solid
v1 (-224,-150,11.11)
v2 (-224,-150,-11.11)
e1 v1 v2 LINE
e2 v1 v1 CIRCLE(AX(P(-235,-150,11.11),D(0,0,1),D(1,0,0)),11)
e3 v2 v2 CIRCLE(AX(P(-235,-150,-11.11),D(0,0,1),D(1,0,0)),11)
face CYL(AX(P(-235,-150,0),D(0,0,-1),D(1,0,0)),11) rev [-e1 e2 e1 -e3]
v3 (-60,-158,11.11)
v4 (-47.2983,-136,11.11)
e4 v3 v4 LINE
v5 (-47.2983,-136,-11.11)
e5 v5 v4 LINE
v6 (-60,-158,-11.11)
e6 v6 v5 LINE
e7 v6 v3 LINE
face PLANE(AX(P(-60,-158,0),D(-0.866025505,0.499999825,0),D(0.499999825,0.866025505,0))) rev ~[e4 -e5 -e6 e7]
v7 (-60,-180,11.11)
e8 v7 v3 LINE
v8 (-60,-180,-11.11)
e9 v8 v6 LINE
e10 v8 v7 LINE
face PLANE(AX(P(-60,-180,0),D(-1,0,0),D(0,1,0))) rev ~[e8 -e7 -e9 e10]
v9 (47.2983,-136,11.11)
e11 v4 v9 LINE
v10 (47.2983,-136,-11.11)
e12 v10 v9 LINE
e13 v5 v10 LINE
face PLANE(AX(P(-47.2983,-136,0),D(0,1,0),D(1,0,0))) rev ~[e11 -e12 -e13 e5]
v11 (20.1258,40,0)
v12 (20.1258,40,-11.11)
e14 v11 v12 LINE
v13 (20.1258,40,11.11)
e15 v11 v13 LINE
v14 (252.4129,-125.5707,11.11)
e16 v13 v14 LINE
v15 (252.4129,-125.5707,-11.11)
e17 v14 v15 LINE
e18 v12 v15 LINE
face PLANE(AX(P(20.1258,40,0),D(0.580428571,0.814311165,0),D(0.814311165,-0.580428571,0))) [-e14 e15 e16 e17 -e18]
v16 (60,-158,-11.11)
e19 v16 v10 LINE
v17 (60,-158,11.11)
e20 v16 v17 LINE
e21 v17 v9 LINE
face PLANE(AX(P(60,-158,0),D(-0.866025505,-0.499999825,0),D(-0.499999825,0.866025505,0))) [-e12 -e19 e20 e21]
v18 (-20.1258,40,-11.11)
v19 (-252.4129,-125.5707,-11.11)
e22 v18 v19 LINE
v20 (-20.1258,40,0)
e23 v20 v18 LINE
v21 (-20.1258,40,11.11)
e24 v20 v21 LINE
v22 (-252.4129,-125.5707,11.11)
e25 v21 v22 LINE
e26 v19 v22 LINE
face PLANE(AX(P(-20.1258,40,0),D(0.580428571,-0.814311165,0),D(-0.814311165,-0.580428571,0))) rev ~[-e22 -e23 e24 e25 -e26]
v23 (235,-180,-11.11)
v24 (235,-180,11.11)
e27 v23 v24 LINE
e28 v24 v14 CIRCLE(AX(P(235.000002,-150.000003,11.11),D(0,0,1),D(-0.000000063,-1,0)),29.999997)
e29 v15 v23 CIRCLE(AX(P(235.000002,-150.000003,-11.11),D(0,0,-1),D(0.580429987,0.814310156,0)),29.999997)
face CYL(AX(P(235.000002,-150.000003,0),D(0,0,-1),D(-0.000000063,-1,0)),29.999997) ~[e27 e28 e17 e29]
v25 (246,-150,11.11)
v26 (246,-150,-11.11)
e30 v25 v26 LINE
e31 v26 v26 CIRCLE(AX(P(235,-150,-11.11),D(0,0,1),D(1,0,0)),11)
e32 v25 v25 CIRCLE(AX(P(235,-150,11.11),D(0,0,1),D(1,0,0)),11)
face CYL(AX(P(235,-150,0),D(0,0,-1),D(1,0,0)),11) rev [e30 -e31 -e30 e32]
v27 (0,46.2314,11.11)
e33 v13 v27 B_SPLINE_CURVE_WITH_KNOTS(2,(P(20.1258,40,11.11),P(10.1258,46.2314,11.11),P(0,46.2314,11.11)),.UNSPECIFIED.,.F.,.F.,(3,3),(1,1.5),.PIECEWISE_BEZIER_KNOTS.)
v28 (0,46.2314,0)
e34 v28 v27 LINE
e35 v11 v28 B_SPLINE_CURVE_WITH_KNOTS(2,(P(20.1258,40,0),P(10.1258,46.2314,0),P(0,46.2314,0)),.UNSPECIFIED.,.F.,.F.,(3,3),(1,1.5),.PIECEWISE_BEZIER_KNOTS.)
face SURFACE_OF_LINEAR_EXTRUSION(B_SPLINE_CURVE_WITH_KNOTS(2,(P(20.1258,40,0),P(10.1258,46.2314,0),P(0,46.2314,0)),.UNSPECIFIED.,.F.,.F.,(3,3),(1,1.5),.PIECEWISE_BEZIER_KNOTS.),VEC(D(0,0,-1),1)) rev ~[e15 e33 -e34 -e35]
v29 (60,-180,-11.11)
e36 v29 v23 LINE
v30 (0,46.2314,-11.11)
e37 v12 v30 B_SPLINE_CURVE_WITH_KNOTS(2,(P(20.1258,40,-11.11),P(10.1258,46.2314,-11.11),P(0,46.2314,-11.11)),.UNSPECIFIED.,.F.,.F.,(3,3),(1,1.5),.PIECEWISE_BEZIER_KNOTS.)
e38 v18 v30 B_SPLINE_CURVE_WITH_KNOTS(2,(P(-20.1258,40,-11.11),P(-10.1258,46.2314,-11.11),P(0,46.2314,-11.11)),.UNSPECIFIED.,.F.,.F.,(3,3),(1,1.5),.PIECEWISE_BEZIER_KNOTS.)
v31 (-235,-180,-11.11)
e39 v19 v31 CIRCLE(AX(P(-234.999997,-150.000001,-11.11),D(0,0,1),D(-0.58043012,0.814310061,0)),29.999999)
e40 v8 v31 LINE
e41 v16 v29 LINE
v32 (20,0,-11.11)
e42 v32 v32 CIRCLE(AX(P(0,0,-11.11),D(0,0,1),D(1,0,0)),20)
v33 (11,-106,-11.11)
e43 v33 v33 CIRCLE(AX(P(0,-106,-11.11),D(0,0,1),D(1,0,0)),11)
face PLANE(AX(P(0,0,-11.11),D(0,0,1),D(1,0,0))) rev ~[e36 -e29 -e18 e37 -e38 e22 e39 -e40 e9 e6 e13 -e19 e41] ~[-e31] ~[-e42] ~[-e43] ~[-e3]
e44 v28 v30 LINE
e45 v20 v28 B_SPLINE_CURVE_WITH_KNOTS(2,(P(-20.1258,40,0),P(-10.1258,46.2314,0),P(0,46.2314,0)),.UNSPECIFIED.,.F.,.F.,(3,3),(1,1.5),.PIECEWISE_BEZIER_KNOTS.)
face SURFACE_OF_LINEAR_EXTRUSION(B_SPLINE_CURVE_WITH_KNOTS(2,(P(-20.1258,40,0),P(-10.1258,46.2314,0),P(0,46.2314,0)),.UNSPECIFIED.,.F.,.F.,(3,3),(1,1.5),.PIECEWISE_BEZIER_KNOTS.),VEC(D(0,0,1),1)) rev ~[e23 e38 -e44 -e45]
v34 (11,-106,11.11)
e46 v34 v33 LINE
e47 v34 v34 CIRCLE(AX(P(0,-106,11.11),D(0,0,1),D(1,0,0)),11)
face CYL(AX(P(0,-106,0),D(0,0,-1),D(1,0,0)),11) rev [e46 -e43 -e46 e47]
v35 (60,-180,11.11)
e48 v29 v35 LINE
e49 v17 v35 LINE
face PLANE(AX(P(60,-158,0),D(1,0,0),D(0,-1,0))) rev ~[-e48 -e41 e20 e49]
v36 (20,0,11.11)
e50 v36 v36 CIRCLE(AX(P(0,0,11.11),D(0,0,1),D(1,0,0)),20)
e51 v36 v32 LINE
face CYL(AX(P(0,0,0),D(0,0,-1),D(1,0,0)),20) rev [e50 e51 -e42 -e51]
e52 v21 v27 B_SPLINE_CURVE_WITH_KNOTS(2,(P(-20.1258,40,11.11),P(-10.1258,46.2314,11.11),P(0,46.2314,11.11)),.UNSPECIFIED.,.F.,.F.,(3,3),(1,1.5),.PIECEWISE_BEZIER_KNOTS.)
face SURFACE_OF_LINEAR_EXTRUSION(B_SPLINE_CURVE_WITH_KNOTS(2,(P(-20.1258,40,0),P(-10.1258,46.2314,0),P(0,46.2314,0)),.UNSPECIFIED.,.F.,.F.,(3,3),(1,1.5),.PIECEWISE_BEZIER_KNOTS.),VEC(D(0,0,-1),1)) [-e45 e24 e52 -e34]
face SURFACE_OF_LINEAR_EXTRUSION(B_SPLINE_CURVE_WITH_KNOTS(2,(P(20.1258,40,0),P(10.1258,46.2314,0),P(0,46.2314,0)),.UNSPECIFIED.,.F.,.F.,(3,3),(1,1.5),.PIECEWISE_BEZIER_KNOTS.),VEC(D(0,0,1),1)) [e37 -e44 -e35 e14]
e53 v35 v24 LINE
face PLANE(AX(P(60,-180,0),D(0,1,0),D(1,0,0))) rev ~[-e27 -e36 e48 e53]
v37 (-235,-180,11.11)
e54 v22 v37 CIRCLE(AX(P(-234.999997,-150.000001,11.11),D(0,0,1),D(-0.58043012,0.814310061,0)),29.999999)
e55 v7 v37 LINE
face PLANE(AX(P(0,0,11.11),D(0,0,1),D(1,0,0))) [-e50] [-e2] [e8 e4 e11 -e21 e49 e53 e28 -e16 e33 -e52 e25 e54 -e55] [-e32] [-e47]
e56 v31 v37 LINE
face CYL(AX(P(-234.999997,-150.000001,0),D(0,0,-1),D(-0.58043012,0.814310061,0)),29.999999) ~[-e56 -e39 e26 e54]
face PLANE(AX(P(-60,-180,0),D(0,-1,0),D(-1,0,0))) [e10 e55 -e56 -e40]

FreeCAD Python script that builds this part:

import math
import FreeCAD as App
import Part
import Sketcher
from FreeCAD import Vector
Q = App.Units.Quantity

doc = App.newDocument("Part")
params = doc.addObject("Spreadsheet::Sheet", "Params")
for row, (alias, value) in enumerate([
    ("sketch1_diameter", "22 mm"),
    ("sketch1_diameter2", "40 mm"),
    ("sketch1_radius", "30 mm"),
    ("sketch1_height", "22 mm"),
    ("pad1_length", "22.22 mm"),
], start=1):
    params.set(f"A{row}", alias)
    params.set(f"B{row}", "=" + value)
    params.setAlias(f"B{row}", alias)

body = doc.addObject("PartDesign::Body", "Body")

# Sketch on XY plane
sketch1 = body.newObject("Sketcher::SketchObject", "Sketch")
sketch1.AttachmentSupport = (doc.getObject("XY_Plane"), [""])
sketch1.MapMode = "FlatFace"
sketch1.addGeometry([
    Part.BSplineCurve([Vector(-20.1258, 40, 0), Vector(-10.1258, 46.2314, 0), Vector(0, 46.2314, 0)], [3, 3], [1, 1.5], False, 2, [1, 1, 1], False),  # 0
    Part.LineSegment(Vector(-20.1258, 40, 0), Vector(-252.4129, -125.5707, 0)),  # 1
    Part.ArcOfCircle(Part.Circle(Vector(-235, -150, 0), Vector(0, 0, 1), 29.999996), math.radians(125.480797), math.radians(270)),  # 2
    Part.LineSegment(Vector(-235, -180, 0), Vector(-60, -180, 0)),  # 3
    Part.LineSegment(Vector(-60, -180, 0), Vector(-60, -158, 0)),  # 4
    Part.LineSegment(Vector(-60, -158, 0), Vector(-47.2983, -136, 0)),  # 5
    Part.LineSegment(Vector(-47.2983, -136, 0), Vector(47.2983, -136, 0)),  # 6
    Part.LineSegment(Vector(47.2983, -136, 0), Vector(60, -158, 0)),  # 7
    Part.LineSegment(Vector(60, -158, 0), Vector(60, -180, 0)),  # 8
    Part.LineSegment(Vector(60, -180, 0), Vector(235, -180, 0)),  # 9
    Part.ArcOfCircle(Part.Circle(Vector(235, -150, 0), Vector(0, 0, 1), 29.999996), math.radians(-90), math.radians(54.519203)),  # 10
    Part.LineSegment(Vector(252.4129, -125.5707, 0), Vector(20.1258, 40, 0)),  # 11
    Part.BSplineCurve([Vector(20.1258, 40, 0), Vector(10.1258, 46.2314, 0), Vector(0, 46.2314, 0)], [3, 3], [1, 1.5], False, 2, [1, 1, 1], False),  # 12
    Part.Circle(Vector(0, -106, 0), Vector(0, 0, 1), 11),  # 13
    Part.Circle(Vector(0, 0, 0), Vector(0, 0, 1), 20),  # 14
    Part.Circle(Vector(235, -150, 0), Vector(0, 0, 1), 11),  # 15
    Part.Circle(Vector(-235, -150, 0), Vector(0, 0, 1), 11),  # 16
], False)
sketch1.addConstraint([
    Sketcher.Constraint("Block", 0),
    Sketcher.Constraint("Block", 12),
    Sketcher.Constraint("Coincident", 0, 1, 1, 1),
    Sketcher.Constraint("Tangent", 1, 2, 2, 1),
    Sketcher.Constraint("Tangent", 2, 2, 3, 1),
    Sketcher.Constraint("Coincident", 3, 2, 4, 1),
    Sketcher.Constraint("Coincident", 4, 2, 5, 1),
    Sketcher.Constraint("Coincident", 5, 2, 6, 1),
    Sketcher.Constraint("Coincident", 6, 2, 7, 1),
    Sketcher.Constraint("Coincident", 7, 2, 8, 1),
    Sketcher.Constraint("Coincident", 8, 2, 9, 1),
    Sketcher.Constraint("Tangent", 9, 2, 10, 1),
    Sketcher.Constraint("Tangent", 10, 2, 11, 1),
    Sketcher.Constraint("Coincident", 11, 2, 12, 1),
    Sketcher.Constraint("Horizontal", 3),
    Sketcher.Constraint("Vertical", 4),
    Sketcher.Constraint("Horizontal", 6),
    Sketcher.Constraint("Vertical", 8),
    Sketcher.Constraint("Horizontal", 9),
    Sketcher.Constraint("Coincident", 14, 3, -1, 1),
    Sketcher.Constraint("Coincident", 15, 3, 10, 3),
    Sketcher.Constraint("Coincident", 16, 3, 2, 3),
    Sketcher.Constraint("Equal", 2, 10),
    Sketcher.Constraint("Equal", 13, 15),
    Sketcher.Constraint("Equal", 15, 16),
    Sketcher.Constraint("Symmetric", 2, 3, 10, 3, -2),
    Sketcher.Constraint("Symmetric", 4, 2, 7, 2, -2),
    Sketcher.Constraint("PointOnObject", 13, 3, -2),
    Sketcher.Constraint("Equal", 5, 7),
    Sketcher.Constraint("Diameter", 13, 22.0),
    Sketcher.Constraint("Diameter", 14, 40.0),
    Sketcher.Constraint("Radius", 2, 30.0),
    Sketcher.Constraint("DistanceY", 4, 1, 4, 2, 22.0),
    Sketcher.Constraint("Angle", 5, Q("60 deg")),
    Sketcher.Constraint("DistanceX", 2, 3, -1, 1, 235.0),
    Sketcher.Constraint("DistanceX", 3, 2, -1, 1, 60.0),
    Sketcher.Constraint("DistanceY", 4, 2, 5, 2, 22.0),
    Sketcher.Constraint("DistanceY", 5, 2, 13, 3, 30.0),
    Sketcher.Constraint("DistanceY", 2, 3, -1, 1, 150.0),
])
sketch1.setExpression("Constraints[29]", "Params.sketch1_diameter")
sketch1.setExpression("Constraints[30]", "Params.sketch1_diameter2")
sketch1.setExpression("Constraints[31]", "Params.sketch1_radius")
sketch1.setExpression("Constraints[32]", "Params.sketch1_height")
pad1 = body.newObject("PartDesign::Pad", "Pad")
pad1.Profile = sketch1
pad1.setExpression("Length", "Params.pad1_length")
pad1.Midplane = True

doc.recompute()
